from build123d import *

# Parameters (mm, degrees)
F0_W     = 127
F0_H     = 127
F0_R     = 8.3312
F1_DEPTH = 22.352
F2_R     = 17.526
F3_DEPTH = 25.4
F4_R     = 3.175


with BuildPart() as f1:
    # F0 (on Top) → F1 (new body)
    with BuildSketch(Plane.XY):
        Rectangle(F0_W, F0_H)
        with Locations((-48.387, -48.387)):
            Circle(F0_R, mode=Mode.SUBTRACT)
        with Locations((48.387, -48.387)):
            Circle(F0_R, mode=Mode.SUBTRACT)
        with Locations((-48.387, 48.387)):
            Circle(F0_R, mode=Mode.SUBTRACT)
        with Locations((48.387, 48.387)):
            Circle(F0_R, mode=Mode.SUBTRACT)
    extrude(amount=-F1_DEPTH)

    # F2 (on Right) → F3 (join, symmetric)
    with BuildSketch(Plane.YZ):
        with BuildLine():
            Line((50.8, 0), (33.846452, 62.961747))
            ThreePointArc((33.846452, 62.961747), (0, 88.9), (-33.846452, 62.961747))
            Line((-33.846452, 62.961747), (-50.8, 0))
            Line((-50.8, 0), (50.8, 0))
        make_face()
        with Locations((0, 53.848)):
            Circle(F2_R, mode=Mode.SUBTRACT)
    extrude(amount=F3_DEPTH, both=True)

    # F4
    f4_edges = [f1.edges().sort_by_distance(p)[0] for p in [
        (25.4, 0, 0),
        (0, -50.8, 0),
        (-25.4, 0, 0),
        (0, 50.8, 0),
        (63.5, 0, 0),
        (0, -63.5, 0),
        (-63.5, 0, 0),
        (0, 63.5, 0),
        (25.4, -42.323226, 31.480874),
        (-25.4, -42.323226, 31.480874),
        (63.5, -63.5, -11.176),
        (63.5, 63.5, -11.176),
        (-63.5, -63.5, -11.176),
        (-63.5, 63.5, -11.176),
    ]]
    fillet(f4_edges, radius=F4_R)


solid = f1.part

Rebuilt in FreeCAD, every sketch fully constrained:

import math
import FreeCAD as App
import Part
import Sketcher

V = App.Vector
Q = App.Units.Quantity


def edges_at(feature, points):
    """Names of the edges that pass closest to the given points."""
    edges = feature.Shape.Edges
    near = lambda p: min(range(len(edges)), key=lambda i: edges[i].distToShape(Part.Vertex(*p))[0])
    return sorted({f"Edge{near(p) + 1}" for p in points})


def add_polygon(sketch, points):
    """Adds a closed chain of lines whose ends are joined by coincident constraints."""
    first, n = sketch.GeometryCount, len(points)
    for a, b in zip(points, points[1:] + points[:1]):
        sketch.addGeometry(Part.LineSegment(App.Vector(*a, 0), App.Vector(*b, 0)), False)
    for i in range(n):
        sketch.addConstraint(Sketcher.Constraint("Coincident", first + i, 2, first + (i + 1) % n, 1))

doc = App.newDocument("Part")
body = doc.addObject("PartDesign::Body", "Body")

# Sketch on XY plane
sketch1 = body.newObject("Sketcher::SketchObject", "Sketch")
sketch1.AttachmentSupport = (doc.getObject("XY_Plane"), [""])
sketch1.MapMode = "FlatFace"
add_polygon(sketch1, [(-64, 64), (-64, -64), (64, -64), (64, 64)])  # lines 0-3
sketch1.addGeometry(Part.Circle(V(-48, -48, 0), V(0, 0, 1), 8), False)  # 4
sketch1.addGeometry(Part.Circle(V(48, -48, 0), V(0, 0, 1), 8), False)  # 5
sketch1.addGeometry(Part.Circle(V(-48, 48, 0), V(0, 0, 1), 8), False)  # 6
sketch1.addGeometry(Part.Circle(V(48, 48, 0), V(0, 0, 1), 8), False)  # 7
sketch1.addConstraint(Sketcher.Constraint("Vertical", 0))
sketch1.addConstraint(Sketcher.Constraint("Horizontal", 1))
sketch1.addConstraint(Sketcher.Constraint("Vertical", 2))
sketch1.addConstraint(Sketcher.Constraint("Horizontal", 3))
sketch1.addConstraint(Sketcher.Constraint("Equal", 4, 5))
sketch1.addConstraint(Sketcher.Constraint("Equal", 5, 6))
sketch1.addConstraint(Sketcher.Constraint("Equal", 6, 7))
sketch1.addConstraint(Sketcher.Constraint("Symmetric", 5, 3, 6, 3, -1, 1))
sketch1.addConstraint(Sketcher.Constraint("Symmetric", 4, 3, 7, 3, -1, 1))
sketch1.addConstraint(Sketcher.Constraint("Symmetric", 0, 2, 2, 2, -1, 1))
sketch1.addConstraint(Sketcher.Constraint("Symmetric", 4, 3, 5, 3, -2))
sketch1.addConstraint(Sketcher.Constraint("Equal", 3, 0))
sketch1.addConstraint(Sketcher.Constraint("DistanceX", 1, 1, 1, 2, Q("5 in")))
sketch1.addConstraint(Sketcher.Constraint("Diameter", 4, Q("0.656 in")))
sketch1.addConstraint(Sketcher.Constraint("DistanceX", 4, 3, 5, 3, Q("3.81 in")))
sketch1.addConstraint(Sketcher.Constraint("DistanceY", 4, 3, 6, 3, Q("3.81 in")))
pad1 = body.newObject("PartDesign::Pad", "Pad")
pad1.Profile = sketch1
pad1.Length = Q("0.88 in")
pad1.Reversed = True

# Sketch on YZ plane
sketch2 = body.newObject("Sketcher::SketchObject", "Sketch001")
sketch2.AttachmentSupport = (doc.getObject("YZ_Plane"), [""])
sketch2.MapMode = "FlatFace"
sketch2.addGeometry(Part.LineSegment(V(51, 0, 0), V(34, 63, 0)), False)
sketch2.addGeometry(Part.ArcOfCircle(Part.Circle(V(0, 54, 0), V(0, 0, 1), 35), math.radians(15), math.radians(165)), False)
sketch2.addGeometry(Part.LineSegment(V(-34, 63, 0), V(-51, 0, 0)), False)
sketch2.addGeometry(Part.LineSegment(V(-51, 0, 0), V(51, 0, 0)), False)
sketch2.addGeometry(Part.Circle(V(0, 54, 0), V(0, 0, 1), 18), False)
sketch2.addConstraint(Sketcher.Constraint("Tangent", 0, 2, 1, 1))
sketch2.addConstraint(Sketcher.Constraint("Tangent", 1, 2, 2, 1))
sketch2.addConstraint(Sketcher.Constraint("Coincident", 2, 2, 3, 1))
sketch2.addConstraint(Sketcher.Constraint("Coincident", 3, 2, 0, 1))
sketch2.addConstraint(Sketcher.Constraint("Horizontal", 3))
sketch2.addConstraint(Sketcher.Constraint("Coincident", 4, 3, 1, 3))
sketch2.addConstraint(Sketcher.Constraint("Symmetric", 2, 2, 3, 2, -1, 1))
sketch2.addConstraint(Sketcher.Constraint("PointOnObject", 1, 3, -2))
sketch2.addConstraint(Sketcher.Constraint("Diameter", 4, Q("1.38 in")))
sketch2.addConstraint(Sketcher.Constraint("DistanceX", 3, 1, 3, 2, Q("4 in")))
sketch2.addConstraint(Sketcher.Constraint("Radius", 1, Q("1.38 in")))
sketch2.addConstraint(Sketcher.Constraint("DistanceY", -1, 1, 1, 3, Q("2.12 in")))
pad2 = body.newObject("PartDesign::Pad", "Pad001")
pad2.Profile = sketch2
pad2.Length = Q("2 in")
pad2.Midplane = True
doc.recompute()

fillet = body.newObject("PartDesign::Fillet", "Fillet")
fillet.Base = (pad2, edges_at(pad2, [
    (25.4, 0, 0),
    (0, -50.8, 0),
    (-25.4, 0, 0),
    (0, 50.8, 0),
    (63.5, 0, 0),
    (0, -63.5, 0),
    (-63.5, 0, 0),
    (0, 63.5, 0),
    (25.4, -42.323, 31.481),
    (-25.4, -42.323, 31.481),
    (63.5, -63.5, -11.176),
    (63.5, 63.5, -11.176),
    (-63.5, -63.5, -11.176),
    (-63.5, 63.5, -11.176),
]))
fillet.Radius = Q("0.125 in")

doc.recompute()
